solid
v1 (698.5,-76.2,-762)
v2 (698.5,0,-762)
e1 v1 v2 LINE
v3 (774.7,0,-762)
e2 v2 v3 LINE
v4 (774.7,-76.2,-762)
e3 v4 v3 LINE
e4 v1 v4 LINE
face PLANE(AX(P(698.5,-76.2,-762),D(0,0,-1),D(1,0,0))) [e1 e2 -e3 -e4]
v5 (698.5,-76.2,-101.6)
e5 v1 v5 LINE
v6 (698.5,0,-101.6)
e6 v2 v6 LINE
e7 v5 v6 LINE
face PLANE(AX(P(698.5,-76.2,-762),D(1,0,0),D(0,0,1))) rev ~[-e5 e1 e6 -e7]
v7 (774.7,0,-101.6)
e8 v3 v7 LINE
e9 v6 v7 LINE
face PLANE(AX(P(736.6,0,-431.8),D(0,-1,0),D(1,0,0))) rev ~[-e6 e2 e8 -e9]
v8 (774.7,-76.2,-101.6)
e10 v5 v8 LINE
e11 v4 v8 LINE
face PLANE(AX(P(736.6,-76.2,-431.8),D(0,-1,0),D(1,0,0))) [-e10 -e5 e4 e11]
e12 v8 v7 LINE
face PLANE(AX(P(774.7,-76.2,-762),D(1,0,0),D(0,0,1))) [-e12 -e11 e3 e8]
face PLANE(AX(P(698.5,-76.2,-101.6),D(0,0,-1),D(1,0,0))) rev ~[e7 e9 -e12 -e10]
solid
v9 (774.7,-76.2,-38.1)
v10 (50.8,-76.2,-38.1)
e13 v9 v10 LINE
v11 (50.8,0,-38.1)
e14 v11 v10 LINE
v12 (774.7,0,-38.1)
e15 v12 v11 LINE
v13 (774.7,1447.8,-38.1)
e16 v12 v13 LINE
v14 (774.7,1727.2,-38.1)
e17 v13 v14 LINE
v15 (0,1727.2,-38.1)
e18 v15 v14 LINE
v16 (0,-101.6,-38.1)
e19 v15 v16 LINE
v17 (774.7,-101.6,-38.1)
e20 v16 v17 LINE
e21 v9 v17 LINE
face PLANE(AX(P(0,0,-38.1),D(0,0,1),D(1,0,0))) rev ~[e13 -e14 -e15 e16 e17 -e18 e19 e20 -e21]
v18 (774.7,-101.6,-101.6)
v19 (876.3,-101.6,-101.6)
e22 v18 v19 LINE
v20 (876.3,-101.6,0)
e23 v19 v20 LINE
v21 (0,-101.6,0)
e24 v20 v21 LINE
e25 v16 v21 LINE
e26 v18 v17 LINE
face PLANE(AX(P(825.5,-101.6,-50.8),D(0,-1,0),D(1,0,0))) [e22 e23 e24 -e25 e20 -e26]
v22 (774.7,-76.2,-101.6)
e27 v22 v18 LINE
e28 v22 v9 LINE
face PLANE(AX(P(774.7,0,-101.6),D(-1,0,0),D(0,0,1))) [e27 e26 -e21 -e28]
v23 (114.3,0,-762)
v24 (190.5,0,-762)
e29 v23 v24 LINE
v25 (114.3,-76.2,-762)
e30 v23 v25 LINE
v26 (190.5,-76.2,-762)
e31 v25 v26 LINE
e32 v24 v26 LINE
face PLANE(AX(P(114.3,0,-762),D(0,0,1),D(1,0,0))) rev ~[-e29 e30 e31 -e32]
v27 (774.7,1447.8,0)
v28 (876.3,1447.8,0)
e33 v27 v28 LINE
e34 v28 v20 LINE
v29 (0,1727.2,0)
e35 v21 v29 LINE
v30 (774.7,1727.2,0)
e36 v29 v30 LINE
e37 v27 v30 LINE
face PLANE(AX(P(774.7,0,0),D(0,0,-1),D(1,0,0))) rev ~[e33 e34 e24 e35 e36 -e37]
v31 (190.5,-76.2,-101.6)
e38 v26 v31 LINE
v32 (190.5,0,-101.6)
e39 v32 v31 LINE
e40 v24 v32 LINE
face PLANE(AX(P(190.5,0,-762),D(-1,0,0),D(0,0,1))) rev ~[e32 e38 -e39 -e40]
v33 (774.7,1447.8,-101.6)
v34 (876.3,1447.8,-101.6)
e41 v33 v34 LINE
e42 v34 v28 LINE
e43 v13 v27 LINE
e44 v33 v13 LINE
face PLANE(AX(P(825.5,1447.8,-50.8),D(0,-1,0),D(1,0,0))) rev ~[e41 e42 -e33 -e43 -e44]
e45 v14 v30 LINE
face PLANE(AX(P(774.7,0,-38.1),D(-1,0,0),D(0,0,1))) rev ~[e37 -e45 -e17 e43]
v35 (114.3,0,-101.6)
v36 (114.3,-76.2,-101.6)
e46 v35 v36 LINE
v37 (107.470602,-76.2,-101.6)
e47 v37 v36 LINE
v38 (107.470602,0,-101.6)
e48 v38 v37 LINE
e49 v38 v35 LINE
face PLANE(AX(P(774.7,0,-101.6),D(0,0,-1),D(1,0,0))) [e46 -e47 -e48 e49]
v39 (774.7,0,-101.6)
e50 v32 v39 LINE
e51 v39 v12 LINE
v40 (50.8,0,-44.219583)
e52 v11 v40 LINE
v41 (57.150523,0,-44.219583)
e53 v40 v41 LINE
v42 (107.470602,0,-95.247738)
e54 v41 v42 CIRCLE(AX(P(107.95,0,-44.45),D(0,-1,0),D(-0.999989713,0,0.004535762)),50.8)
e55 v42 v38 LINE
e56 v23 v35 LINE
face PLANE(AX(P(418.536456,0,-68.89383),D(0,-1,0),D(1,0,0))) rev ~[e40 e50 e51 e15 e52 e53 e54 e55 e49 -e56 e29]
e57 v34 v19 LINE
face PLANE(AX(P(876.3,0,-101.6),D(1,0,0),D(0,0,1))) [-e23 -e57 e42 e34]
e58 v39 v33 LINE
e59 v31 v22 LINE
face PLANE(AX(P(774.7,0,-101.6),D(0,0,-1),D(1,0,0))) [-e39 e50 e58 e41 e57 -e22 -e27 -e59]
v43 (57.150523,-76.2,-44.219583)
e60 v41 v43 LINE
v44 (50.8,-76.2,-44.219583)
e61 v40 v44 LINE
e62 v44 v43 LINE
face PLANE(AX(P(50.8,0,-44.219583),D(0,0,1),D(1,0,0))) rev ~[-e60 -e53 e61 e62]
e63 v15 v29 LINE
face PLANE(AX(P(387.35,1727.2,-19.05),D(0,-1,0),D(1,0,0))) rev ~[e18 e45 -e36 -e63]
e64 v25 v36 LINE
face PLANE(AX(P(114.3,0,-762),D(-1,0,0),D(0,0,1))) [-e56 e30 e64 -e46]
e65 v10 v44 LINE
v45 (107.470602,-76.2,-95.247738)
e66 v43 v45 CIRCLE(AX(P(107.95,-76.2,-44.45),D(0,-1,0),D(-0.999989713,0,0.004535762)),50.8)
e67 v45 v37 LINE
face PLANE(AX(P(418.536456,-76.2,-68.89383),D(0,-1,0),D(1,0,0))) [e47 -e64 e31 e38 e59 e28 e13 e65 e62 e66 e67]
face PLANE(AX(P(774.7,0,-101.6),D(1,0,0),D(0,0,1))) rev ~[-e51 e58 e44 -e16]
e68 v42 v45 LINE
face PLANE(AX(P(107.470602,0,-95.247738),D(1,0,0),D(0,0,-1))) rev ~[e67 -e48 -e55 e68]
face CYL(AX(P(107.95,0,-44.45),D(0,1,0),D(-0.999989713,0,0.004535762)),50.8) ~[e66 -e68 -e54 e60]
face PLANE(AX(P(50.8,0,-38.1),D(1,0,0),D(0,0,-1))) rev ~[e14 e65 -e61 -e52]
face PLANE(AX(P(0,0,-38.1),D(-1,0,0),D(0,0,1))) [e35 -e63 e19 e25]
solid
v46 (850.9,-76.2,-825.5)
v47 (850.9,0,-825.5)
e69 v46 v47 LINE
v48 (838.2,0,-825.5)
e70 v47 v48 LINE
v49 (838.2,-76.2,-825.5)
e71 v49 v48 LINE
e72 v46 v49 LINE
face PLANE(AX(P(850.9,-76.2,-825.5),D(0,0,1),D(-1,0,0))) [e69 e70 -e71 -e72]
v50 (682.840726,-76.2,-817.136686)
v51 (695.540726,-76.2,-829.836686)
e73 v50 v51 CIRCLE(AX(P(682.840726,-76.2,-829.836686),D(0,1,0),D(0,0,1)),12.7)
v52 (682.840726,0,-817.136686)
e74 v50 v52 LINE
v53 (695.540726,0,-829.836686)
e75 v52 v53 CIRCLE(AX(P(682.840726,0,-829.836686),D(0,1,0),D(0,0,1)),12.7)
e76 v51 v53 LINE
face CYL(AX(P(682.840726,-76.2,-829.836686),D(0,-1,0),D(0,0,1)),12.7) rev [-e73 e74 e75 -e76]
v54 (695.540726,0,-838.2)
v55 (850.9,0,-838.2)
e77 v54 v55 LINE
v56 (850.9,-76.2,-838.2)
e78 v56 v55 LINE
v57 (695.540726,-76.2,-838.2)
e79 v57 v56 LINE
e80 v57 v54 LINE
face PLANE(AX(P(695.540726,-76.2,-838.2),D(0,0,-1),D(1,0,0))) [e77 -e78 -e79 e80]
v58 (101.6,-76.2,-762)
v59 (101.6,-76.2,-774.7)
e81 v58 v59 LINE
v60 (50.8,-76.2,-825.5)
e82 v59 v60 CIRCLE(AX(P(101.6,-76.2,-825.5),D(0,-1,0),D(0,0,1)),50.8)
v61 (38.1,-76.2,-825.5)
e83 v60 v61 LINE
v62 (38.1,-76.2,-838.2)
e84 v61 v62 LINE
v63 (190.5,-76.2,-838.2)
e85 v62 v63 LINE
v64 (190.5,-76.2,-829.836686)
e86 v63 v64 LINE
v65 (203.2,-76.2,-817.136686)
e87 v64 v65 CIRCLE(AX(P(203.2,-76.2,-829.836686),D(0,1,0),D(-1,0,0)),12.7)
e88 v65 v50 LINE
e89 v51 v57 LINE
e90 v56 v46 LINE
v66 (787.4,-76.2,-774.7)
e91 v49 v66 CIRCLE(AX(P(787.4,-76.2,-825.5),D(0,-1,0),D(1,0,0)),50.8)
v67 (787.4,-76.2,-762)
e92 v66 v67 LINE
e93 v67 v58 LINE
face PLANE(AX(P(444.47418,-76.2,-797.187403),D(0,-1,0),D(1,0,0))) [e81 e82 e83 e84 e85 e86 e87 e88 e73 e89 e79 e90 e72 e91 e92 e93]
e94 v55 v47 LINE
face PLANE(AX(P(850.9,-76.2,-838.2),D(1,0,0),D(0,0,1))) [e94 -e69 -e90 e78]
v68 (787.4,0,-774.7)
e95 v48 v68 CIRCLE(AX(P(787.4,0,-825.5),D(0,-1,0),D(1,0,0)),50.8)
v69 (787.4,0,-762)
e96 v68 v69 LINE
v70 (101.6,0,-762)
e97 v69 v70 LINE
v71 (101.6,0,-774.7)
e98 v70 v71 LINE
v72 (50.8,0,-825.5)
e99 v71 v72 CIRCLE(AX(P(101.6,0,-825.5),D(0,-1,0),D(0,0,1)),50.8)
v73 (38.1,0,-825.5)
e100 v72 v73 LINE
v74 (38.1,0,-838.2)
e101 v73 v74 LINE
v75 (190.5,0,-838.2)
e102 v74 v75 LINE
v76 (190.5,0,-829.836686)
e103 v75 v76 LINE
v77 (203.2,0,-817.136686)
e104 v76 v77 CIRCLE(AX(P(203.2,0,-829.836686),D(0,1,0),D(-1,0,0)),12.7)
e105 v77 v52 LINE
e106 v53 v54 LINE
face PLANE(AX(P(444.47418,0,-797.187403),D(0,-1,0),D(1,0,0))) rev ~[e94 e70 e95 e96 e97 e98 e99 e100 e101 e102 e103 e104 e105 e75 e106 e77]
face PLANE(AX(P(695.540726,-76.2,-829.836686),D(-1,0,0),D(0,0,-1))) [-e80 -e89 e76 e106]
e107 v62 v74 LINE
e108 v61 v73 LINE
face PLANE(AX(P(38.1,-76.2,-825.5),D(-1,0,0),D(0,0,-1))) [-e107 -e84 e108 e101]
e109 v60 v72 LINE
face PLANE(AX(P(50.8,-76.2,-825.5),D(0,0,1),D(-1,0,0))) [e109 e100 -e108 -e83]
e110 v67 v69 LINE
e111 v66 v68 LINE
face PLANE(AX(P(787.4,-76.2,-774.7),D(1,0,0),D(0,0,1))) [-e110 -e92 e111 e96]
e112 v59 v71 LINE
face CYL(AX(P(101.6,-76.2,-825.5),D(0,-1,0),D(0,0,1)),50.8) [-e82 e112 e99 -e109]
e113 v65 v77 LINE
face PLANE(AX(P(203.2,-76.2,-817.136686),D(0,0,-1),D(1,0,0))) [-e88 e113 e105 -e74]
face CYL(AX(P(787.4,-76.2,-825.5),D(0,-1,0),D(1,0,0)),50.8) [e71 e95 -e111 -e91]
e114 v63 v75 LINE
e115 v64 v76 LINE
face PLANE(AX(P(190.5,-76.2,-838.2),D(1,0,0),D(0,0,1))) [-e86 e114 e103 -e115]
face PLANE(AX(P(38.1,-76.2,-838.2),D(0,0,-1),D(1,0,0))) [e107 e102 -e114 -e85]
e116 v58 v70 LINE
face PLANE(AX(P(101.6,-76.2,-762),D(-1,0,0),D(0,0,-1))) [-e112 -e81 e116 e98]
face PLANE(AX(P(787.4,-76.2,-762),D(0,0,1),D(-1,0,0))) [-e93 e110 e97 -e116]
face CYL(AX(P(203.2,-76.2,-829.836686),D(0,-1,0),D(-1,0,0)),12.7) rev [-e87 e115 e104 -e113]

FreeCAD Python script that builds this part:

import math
import FreeCAD as App
import Part
import Sketcher
Q = App.Units.Quantity


def add_polygon(sketch, points):
    """Adds a closed chain of lines whose ends are joined by coincident constraints."""
    first, n = sketch.GeometryCount, len(points)
    for a, b in zip(points, points[1:] + points[:1]):
        sketch.addGeometry(Part.LineSegment(App.Vector(*a, 0), App.Vector(*b, 0)), False)
    for i in range(n):
        sketch.addConstraint(Sketcher.Constraint("Coincident", first + i, 2, first + (i + 1) % n, 1))

doc = App.newDocument("Part")
body = doc.addObject("PartDesign::Body", "Body")

# Sketch on XZ plane
sketch1 = body.newObject("Sketcher::SketchObject", "Sketch")
sketch1.AttachmentSupport = (doc.getObject("XZ_Plane"), [""])
sketch1.MapMode = "FlatFace"
sketch1.addGeometry(Part.LineSegment(App.Vector(51, -44, 0), App.Vector(57, -44, 0)), False)
sketch1.addGeometry(Part.ArcOfCircle(Part.Circle(App.Vector(108, -44, 0), App.Vector(0, 0, 1), 51), math.radians(180), math.radians(269)), False)
sketch1.addGeometry(Part.LineSegment(App.Vector(107, -95, 0), App.Vector(107, -102, 0)), False)
sketch1.addGeometry(Part.LineSegment(App.Vector(107, -102, 0), App.Vector(775, -102, 0)), False)
sketch1.addGeometry(Part.LineSegment(App.Vector(775, -102, 0), App.Vector(775, -38, 0)), False)
sketch1.addGeometry(Part.LineSegment(App.Vector(775, -38, 0), App.Vector(51, -38, 0)), False)
sketch1.addGeometry(Part.LineSegment(App.Vector(51, -38, 0), App.Vector(51, -44, 0)), False)
sketch1.addConstraint(Sketcher.Constraint("Coincident", 0, 2, 1, 1))
sketch1.addConstraint(Sketcher.Constraint("Coincident", 1, 2, 2, 1))
sketch1.addConstraint(Sketcher.Constraint("Coincident", 2, 2, 3, 1))
sketch1.addConstraint(Sketcher.Constraint("Coincident", 3, 2, 4, 1))
sketch1.addConstraint(Sketcher.Constraint("Coincident", 4, 2, 5, 1))
sketch1.addConstraint(Sketcher.Constraint("Coincident", 5, 2, 6, 1))
sketch1.addConstraint(Sketcher.Constraint("Coincident", 6, 2, 0, 1))
sketch1.addConstraint(Sketcher.Constraint("Horizontal", 0))
sketch1.addConstraint(Sketcher.Constraint("Vertical", 2))
sketch1.addConstraint(Sketcher.Constraint("Horizontal", 3))
sketch1.addConstraint(Sketcher.Constraint("Vertical", 4))
sketch1.addConstraint(Sketcher.Constraint("Horizontal", 5))
sketch1.addConstraint(Sketcher.Constraint("Vertical", 6))
sketch1.addConstraint(Sketcher.Constraint("Radius", 1, Q("2 in")))
sketch1.addConstraint(Sketcher.Constraint("DistanceX", 5, 2, 5, 1, Q("28.5 in")))
sketch1.addConstraint(Sketcher.Constraint("DistanceY", 4, 1, 4, 2, Q("2.5 in")))
sketch1.addConstraint(Sketcher.Constraint("DistanceY", 2, 2, -1, 1, Q("4 in")))
sketch1.addConstraint(Sketcher.Constraint("DistanceX", -1, 1, 5, 2, Q("2 in")))
sketch1.addConstraint(Sketcher.Constraint("DistanceX", -1, 1, 1, 3, Q("4.25 in")))
sketch1.addConstraint(Sketcher.Constraint("DistanceY", 1, 3, -1, 1, Q("1.75 in")))
sketch1.addConstraint(Sketcher.Constraint("DistanceX", 3, 1, 3, 2, Q("667.229398 mm")))
sketch1.addConstraint(Sketcher.Constraint("DistanceY", 6, 2, 6, 1, Q("6.119583 mm")))
pad1 = body.newObject("PartDesign::Pad", "Pad")
pad1.Profile = sketch1
pad1.Length = Q("3 in")

# Sketch on XZ plane
sketch2 = body.newObject("Sketcher::SketchObject", "Sketch001")
sketch2.AttachmentSupport = (doc.getObject("XZ_Plane"), [""])
sketch2.MapMode = "FlatFace"
add_polygon(sketch2, [(0, 0), (0, -38), (775, -38), (775, 0)])  # lines 0-3
sketch2.addConstraint(Sketcher.Constraint("Vertical", 0))
sketch2.addConstraint(Sketcher.Constraint("Horizontal", 1))
sketch2.addConstraint(Sketcher.Constraint("Vertical", 2))
sketch2.addConstraint(Sketcher.Constraint("Horizontal", 3))
sketch2.addConstraint(Sketcher.Constraint("Coincident", 3, 2, -1, 1))
sketch2.addConstraint(Sketcher.Constraint("DistanceX", 1, 1, 1, 2, Q("30.5 in")))
sketch2.addConstraint(Sketcher.Constraint("DistanceY", 0, 2, 0, 1, Q("1.5 in")))
pad2 = body.newObject("PartDesign::Pad", "Pad001")
pad2.Profile = sketch2
pad2.Type = "TwoLengths"
pad2.Length = Q("68 in")
pad2.Length2 = Q("4 in")
pad2.Reversed = True

# Sketch on XZ plane
sketch3 = body.newObject("Sketcher::SketchObject", "Sketch002")
sketch3.AttachmentSupport = (doc.getObject("XZ_Plane"), [""])
sketch3.MapMode = "FlatFace"
add_polygon(sketch3, [(775, 0), (775, -102), (876, -102), (876, 0)])  # lines 0-3
sketch3.addConstraint(Sketcher.Constraint("Vertical", 0))
sketch3.addConstraint(Sketcher.Constraint("Horizontal", 1))
sketch3.addConstraint(Sketcher.Constraint("Vertical", 2))
sketch3.addConstraint(Sketcher.Constraint("Horizontal", 3))
sketch3.addConstraint(Sketcher.Constraint("PointOnObject", 2, 2, -1))
sketch3.addConstraint(Sketcher.Constraint("Equal", 3, 0))
sketch3.addConstraint(Sketcher.Constraint("DistanceX", 1, 1, 1, 2, Q("4 in")))
sketch3.addConstraint(Sketcher.Constraint("DistanceX", -1, 1, 0, 2, Q("30.5 in")))
pad3 = body.newObject("PartDesign::Pad", "Pad002")
pad3.Profile = sketch3
pad3.Type = "TwoLengths"
pad3.Length = Q("4 in")
pad3.Length2 = Q("57 in")

# Sketch on XZ plane
sketch4 = body.newObject("Sketcher::SketchObject", "Sketch003")
sketch4.AttachmentSupport = (doc.getObject("XZ_Plane"), [""])
sketch4.MapMode = "FlatFace"
add_polygon(sketch4, [(114, -102), (114, -762), (190, -762), (190, -102)])  # lines 0-3
sketch4.addConstraint(Sketcher.Constraint("Vertical", 0))
sketch4.addConstraint(Sketcher.Constraint("Horizontal", 1))
sketch4.addConstraint(Sketcher.Constraint("Vertical", 2))
sketch4.addConstraint(Sketcher.Constraint("Horizontal", 3))
sketch4.addConstraint(Sketcher.Constraint("DistanceX", 1, 1, 1, 2, Q("3 in")))
sketch4.addConstraint(Sketcher.Constraint("DistanceY", 0, 2, 0, 1, Q("26 in")))
sketch4.addConstraint(Sketcher.Constraint("DistanceY", 0, 2, -1, 1, Q("30 in")))
sketch4.addConstraint(Sketcher.Constraint("DistanceX", -1, 1, 0, 2, Q("4.5 in")))
pad4 = body.newObject("PartDesign::Pad", "Pad003")
pad4.Profile = sketch4
pad4.Length = Q("3 in")
body2 = doc.addObject("PartDesign::Body", "Body001")

# Sketch on XZ plane
sketch5 = body2.newObject("Sketcher::SketchObject", "Sketch004")
sketch5.AttachmentSupport = (doc.getObject("XZ_Plane001"), [""])
sketch5.MapMode = "FlatFace"
sketch5.AttachmentOffset = App.Placement(App.Vector(0, 0, 3 * 25.4), App.Rotation())
add_polygon(sketch5, [(698, -102), (698, -762), (775, -762), (775, -102)])  # lines 0-3
sketch5.addConstraint(Sketcher.Constraint("Vertical", 0))
sketch5.addConstraint(Sketcher.Constraint("Horizontal", 1))
sketch5.addConstraint(Sketcher.Constraint("Vertical", 2))
sketch5.addConstraint(Sketcher.Constraint("Horizontal", 3))
sketch5.addConstraint(Sketcher.Constraint("DistanceX", 1, 1, 1, 2, Q("3 in")))
sketch5.addConstraint(Sketcher.Constraint("DistanceY", 0, 2, 0, 1, Q("26 in")))
sketch5.addConstraint(Sketcher.Constraint("DistanceY", 0, 2, -1, 1, Q("30 in")))
sketch5.addConstraint(Sketcher.Constraint("DistanceX", -1, 1, 0, 2, Q("27.5 in")))
pad5 = body2.newObject("PartDesign::Pad", "Pad004")
pad5.Profile = sketch5
pad5.Length = Q("3 in")
pad5.Reversed = True
body3 = doc.addObject("PartDesign::Body", "Body002")

# Sketch on XZ plane
sketch6 = body3.newObject("Sketcher::SketchObject", "Sketch005")
sketch6.AttachmentSupport = (doc.getObject("XZ_Plane002"), [""])
sketch6.MapMode = "FlatFace"
sketch6.AttachmentOffset = App.Placement(App.Vector(0, 0, 3 * 25.4), App.Rotation())
sketch6.addGeometry(Part.LineSegment(App.Vector(102, -762, 0), App.Vector(102, -775, 0)), False)
sketch6.addGeometry(Part.ArcOfCircle(Part.Circle(App.Vector(102, -826, 0), App.Vector(0, 0, 1), 51), math.radians(90), math.radians(180)), False)
sketch6.addGeometry(Part.LineSegment(App.Vector(51, -826, 0), App.Vector(38, -826, 0)), False)
sketch6.addGeometry(Part.LineSegment(App.Vector(38, -826, 0), App.Vector(38, -838, 0)), False)
sketch6.addGeometry(Part.LineSegment(App.Vector(38, -838, 0), App.Vector(190, -838, 0)), False)
sketch6.addGeometry(Part.LineSegment(App.Vector(190, -838, 0), App.Vector(190, -830, 0)), False)
sketch6.addGeometry(Part.ArcOfCircle(Part.Circle(App.Vector(203, -830, 0), App.Vector(0, 0, 1), 13), math.radians(90), math.radians(180)), False)
sketch6.addGeometry(Part.LineSegment(App.Vector(203, -817, 0), App.Vector(683, -817, 0)), False)
sketch6.addGeometry(Part.ArcOfCircle(Part.Circle(App.Vector(683, -830, 0), App.Vector(0, 0, 1), 13), math.radians(0), math.radians(90)), False)
sketch6.addGeometry(Part.LineSegment(App.Vector(696, -830, 0), App.Vector(696, -838, 0)), False)
sketch6.addGeometry(Part.LineSegment(App.Vector(696, -838, 0), App.Vector(851, -838, 0)), False)
sketch6.addGeometry(Part.LineSegment(App.Vector(851, -838, 0), App.Vector(851, -826, 0)), False)
sketch6.addGeometry(Part.LineSegment(App.Vector(851, -826, 0), App.Vector(838, -826, 0)), False)
sketch6.addGeometry(Part.ArcOfCircle(Part.Circle(App.Vector(787, -826, 0), App.Vector(0, 0, 1), 51), math.radians(0), math.radians(90)), False)
sketch6.addGeometry(Part.LineSegment(App.Vector(787, -775, 0), App.Vector(787, -762, 0)), False)
sketch6.addGeometry(Part.LineSegment(App.Vector(787, -762, 0), App.Vector(102, -762, 0)), False)
sketch6.addConstraint(Sketcher.Constraint("Coincident", 0, 2, 1, 1))
sketch6.addConstraint(Sketcher.Constraint("Coincident", 1, 2, 2, 1))
sketch6.addConstraint(Sketcher.Constraint("Coincident", 2, 2, 3, 1))
sketch6.addConstraint(Sketcher.Constraint("Coincident", 3, 2, 4, 1))
sketch6.addConstraint(Sketcher.Constraint("Coincident", 4, 2, 5, 1))
sketch6.addConstraint(Sketcher.Constraint("Tangent", 5, 2, 6, 2))
sketch6.addConstraint(Sketcher.Constraint("Tangent", 6, 1, 7, 1))
sketch6.addConstraint(Sketcher.Constraint("Tangent", 7, 2, 8, 2))
sketch6.addConstraint(Sketcher.Constraint("Tangent", 8, 1, 9, 1))
sketch6.addConstraint(Sketcher.Constraint("Coincident", 9, 2, 10, 1))
sketch6.addConstraint(Sketcher.Constraint("Coincident", 10, 2, 11, 1))
sketch6.addConstraint(Sketcher.Constraint("Coincident", 11, 2, 12, 1))
sketch6.addConstraint(Sketcher.Constraint("Coincident", 12, 2, 13, 1))
sketch6.addConstraint(Sketcher.Constraint("Coincident", 13, 2, 14, 1))
sketch6.addConstraint(Sketcher.Constraint("Coincident", 14, 2, 15, 1))
sketch6.addConstraint(Sketcher.Constraint("Coincident", 15, 2, 0, 1))
sketch6.addConstraint(Sketcher.Constraint("Vertical", 0))
sketch6.addConstraint(Sketcher.Constraint("Horizontal", 2))
sketch6.addConstraint(Sketcher.Constraint("Vertical", 3))
sketch6.addConstraint(Sketcher.Constraint("Horizontal", 4))
sketch6.addConstraint(Sketcher.Constraint("Vertical", 5))
sketch6.addConstraint(Sketcher.Constraint("Horizontal", 7))
sketch6.addConstraint(Sketcher.Constraint("Vertical", 9))
sketch6.addConstraint(Sketcher.Constraint("Horizontal", 10))
sketch6.addConstraint(Sketcher.Constraint("Vertical", 11))
sketch6.addConstraint(Sketcher.Constraint("Horizontal", 12))
sketch6.addConstraint(Sketcher.Constraint("Vertical", 14))
sketch6.addConstraint(Sketcher.Constraint("Horizontal", 15))
sketch6.addConstraint(Sketcher.Constraint("Equal", 6, 8))
sketch6.addConstraint(Sketcher.Constraint("Equal", 1, 13))
sketch6.addConstraint(Sketcher.Constraint("Horizontal", 1, 3, 13, 3))
sketch6.addConstraint(Sketcher.Constraint("Horizontal", 13, 3, 1, 2))
sketch6.addConstraint(Sketcher.Constraint("Horizontal", 4, 2, 9, 2))
sketch6.addConstraint(Sketcher.Constraint("Horizontal", 2, 2, 11, 2))
sketch6.addConstraint(Sketcher.Constraint("Vertical", 1, 3, 0, 2))
sketch6.addConstraint(Sketcher.Constraint("Equal", 2, 12))
sketch6.addConstraint(Sketcher.Constraint("Equal", 12, 0))
sketch6.addConstraint(Sketcher.Constraint("Equal", 0, 3))
sketch6.addConstraint(Sketcher.Constraint("Radius", 1, Q("2 in")))
sketch6.addConstraint(Sketcher.Constraint("Radius", 6, Q("0.5 in")))
sketch6.addConstraint(Sketcher.Constraint("DistanceX", 4, 1, 4, 2, Q("6 in")))
sketch6.addConstraint(Sketcher.Constraint("DistanceX", 15, 2, 15, 1, Q("27 in")))
sketch6.addConstraint(Sketcher.Constraint("DistanceX", 2, 2, 2, 1, Q("0.5 in")))
sketch6.addConstraint(Sketcher.Constraint("DistanceX", -1, 1, 1, 3, Q("4 in")))
sketch6.addConstraint(Sketcher.Constraint("DistanceX", -1, 1, 13, 3, Q("31 in")))
sketch6.addConstraint(Sketcher.Constraint("DistanceY", 3, 2, -1, 1, Q("33 in")))
sketch6.addConstraint(Sketcher.Constraint("DistanceX", 7, 1, 7, 2, Q("479.640726 mm")))
sketch6.addConstraint(Sketcher.Constraint("DistanceY", 5, 1, 5, 2, Q("8.363314 mm")))
pad6 = body3.newObject("PartDesign::Pad", "Pad005")
pad6.Profile = sketch6
pad6.Length = Q("3 in")
pad6.Reversed = True

doc.recompute()
